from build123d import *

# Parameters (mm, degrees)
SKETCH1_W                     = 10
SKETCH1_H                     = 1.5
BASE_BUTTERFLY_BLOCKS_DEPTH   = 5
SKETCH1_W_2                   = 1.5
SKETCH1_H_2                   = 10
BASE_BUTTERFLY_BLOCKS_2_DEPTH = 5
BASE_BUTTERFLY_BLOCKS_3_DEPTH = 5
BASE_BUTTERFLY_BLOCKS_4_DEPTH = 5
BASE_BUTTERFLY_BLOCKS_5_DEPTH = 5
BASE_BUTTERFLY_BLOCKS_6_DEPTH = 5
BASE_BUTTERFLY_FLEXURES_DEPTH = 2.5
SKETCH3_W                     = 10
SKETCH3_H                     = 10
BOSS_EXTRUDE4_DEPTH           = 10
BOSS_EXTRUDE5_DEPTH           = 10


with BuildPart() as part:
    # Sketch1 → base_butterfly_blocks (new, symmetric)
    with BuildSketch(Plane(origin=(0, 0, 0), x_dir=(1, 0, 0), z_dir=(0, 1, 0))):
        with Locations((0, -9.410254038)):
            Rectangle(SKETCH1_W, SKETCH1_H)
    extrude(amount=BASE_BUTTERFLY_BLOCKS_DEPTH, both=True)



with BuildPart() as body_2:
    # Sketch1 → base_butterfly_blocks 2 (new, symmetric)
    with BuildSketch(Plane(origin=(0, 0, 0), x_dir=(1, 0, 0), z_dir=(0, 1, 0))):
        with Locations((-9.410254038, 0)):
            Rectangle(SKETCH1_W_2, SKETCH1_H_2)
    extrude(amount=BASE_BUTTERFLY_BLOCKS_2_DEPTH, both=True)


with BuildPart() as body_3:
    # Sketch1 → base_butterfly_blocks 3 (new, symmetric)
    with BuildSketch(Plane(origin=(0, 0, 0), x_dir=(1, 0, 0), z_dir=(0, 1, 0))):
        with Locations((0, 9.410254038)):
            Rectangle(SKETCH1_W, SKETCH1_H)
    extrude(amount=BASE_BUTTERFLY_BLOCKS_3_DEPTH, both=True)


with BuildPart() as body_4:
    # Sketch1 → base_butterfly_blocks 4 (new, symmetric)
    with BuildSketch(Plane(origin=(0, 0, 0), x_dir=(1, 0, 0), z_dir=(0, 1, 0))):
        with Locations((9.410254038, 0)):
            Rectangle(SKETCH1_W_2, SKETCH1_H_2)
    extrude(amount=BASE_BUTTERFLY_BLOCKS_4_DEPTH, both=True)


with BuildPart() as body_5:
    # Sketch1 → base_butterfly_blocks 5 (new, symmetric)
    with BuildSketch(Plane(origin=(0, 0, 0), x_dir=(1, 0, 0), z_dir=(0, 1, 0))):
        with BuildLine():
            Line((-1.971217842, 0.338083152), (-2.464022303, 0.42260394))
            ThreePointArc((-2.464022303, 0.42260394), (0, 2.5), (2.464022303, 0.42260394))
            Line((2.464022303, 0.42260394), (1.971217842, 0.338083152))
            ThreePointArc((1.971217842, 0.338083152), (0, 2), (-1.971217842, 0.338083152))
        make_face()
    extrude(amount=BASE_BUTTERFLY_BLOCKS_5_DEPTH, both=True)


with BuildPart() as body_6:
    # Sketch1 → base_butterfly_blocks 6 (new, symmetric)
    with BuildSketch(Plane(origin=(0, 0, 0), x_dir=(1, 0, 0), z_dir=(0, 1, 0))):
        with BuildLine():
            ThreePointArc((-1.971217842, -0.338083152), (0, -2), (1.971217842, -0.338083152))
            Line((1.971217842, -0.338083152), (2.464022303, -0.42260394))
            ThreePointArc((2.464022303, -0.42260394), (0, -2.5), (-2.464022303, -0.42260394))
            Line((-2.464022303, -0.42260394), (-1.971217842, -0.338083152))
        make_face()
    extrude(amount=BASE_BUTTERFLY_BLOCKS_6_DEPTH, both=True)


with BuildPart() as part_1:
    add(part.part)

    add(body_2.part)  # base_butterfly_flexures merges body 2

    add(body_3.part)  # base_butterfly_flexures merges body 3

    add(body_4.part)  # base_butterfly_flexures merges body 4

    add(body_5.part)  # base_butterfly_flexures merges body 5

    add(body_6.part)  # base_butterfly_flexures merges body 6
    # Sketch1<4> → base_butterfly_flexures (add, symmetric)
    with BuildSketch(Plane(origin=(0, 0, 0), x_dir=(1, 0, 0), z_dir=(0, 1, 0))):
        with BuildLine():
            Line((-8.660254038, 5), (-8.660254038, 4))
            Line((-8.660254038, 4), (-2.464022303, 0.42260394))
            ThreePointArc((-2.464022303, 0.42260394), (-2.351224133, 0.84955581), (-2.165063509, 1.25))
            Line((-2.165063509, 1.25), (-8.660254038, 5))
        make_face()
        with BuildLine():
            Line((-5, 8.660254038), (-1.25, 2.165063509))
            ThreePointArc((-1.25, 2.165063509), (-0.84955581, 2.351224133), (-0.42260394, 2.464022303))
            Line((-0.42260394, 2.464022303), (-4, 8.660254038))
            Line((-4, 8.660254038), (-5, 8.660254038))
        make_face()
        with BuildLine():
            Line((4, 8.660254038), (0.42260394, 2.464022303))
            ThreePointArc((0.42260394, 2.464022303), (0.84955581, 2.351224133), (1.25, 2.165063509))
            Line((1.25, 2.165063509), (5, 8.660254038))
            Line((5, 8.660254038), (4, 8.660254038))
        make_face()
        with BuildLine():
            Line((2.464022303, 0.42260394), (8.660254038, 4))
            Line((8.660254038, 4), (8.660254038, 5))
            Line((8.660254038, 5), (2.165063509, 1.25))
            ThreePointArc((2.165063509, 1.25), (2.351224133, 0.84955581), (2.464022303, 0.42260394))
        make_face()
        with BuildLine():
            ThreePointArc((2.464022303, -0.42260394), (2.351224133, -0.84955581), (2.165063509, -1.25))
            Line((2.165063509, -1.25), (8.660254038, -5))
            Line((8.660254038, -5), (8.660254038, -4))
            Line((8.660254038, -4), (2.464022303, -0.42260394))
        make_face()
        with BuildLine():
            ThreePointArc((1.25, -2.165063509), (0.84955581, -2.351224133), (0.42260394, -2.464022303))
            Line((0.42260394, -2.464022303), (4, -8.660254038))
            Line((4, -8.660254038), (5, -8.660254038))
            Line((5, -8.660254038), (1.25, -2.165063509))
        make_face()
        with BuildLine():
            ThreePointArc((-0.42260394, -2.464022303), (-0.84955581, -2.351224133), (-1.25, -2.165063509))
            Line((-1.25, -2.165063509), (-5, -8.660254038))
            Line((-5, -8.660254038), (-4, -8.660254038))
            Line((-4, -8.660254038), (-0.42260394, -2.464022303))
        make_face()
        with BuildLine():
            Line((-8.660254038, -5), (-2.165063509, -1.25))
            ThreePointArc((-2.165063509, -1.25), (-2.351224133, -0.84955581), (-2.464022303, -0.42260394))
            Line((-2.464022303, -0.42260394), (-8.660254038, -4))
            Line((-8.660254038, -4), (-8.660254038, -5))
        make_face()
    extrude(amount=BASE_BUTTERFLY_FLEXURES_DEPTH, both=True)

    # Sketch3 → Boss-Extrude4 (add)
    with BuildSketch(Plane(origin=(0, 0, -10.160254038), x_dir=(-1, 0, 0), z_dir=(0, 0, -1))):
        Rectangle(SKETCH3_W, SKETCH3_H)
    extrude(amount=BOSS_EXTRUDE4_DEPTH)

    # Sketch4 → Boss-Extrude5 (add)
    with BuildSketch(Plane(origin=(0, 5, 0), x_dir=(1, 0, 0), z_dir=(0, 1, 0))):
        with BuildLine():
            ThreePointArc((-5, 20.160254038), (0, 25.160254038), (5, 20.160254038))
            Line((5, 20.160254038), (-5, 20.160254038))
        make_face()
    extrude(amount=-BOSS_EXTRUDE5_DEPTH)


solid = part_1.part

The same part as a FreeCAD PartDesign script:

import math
import FreeCAD as App
import Part
import Sketcher

V = App.Vector
Q = App.Units.Quantity

doc = App.newDocument("Part")
body = doc.addObject("PartDesign::Body", "Body")

sketch1 = body.newObject("Sketcher::SketchObject", "Sketch")
sketch1.AttachmentSupport = (doc.getObject("XZ_Plane"), [""])
sketch1.MapMode = "FlatFace"
sketch1.addGeometry([
    Part.LineSegment(V(-5, 8.660254, 0), V(-5, 10.160254, 0)),
    Part.LineSegment(V(-5, 10.160254, 0), V(5, 10.160254, 0)),
    Part.LineSegment(V(5, 10.160254, 0), V(5, 8.660254, 0)),
    Part.LineSegment(V(5, 8.660254, 0), V(-5, 8.660254, 0)),
], False)
sketch1.addConstraint([
    Sketcher.Constraint("Coincident", 0, 2, 1, 1),
    Sketcher.Constraint("Coincident", 1, 2, 2, 1),
    Sketcher.Constraint("Coincident", 2, 2, 3, 1),
    Sketcher.Constraint("Coincident", 3, 2, 0, 1),
    Sketcher.Constraint("Vertical", 0),
    Sketcher.Constraint("Horizontal", 1),
    Sketcher.Constraint("Vertical", 2),
    Sketcher.Constraint("Horizontal", 3),
    Sketcher.Constraint("DistanceX", 1, 1, 1, 2, 10.0),
    Sketcher.Constraint("DistanceY", 0, 1, 0, 2, 1.5),
    Sketcher.Constraint("DistanceX", 0, 2, -1, 1, 5.0),
    Sketcher.Constraint("DistanceY", -1, 1, 0, 2, 10.160254),
])
pad1 = body.newObject("PartDesign::Pad", "Pad")
pad1.Profile = sketch1
pad1.Length = 10
pad1.Midplane = True
body2 = doc.addObject("PartDesign::Body", "Body001")

sketch2 = body2.newObject("Sketcher::SketchObject", "Sketch001")
sketch2.AttachmentSupport = (doc.getObject("XZ_Plane001"), [""])
sketch2.MapMode = "FlatFace"
sketch2.addGeometry([
    Part.LineSegment(V(-10.160254, -5, 0), V(-10.160254, 5, 0)),
    Part.LineSegment(V(-10.160254, 5, 0), V(-8.660254, 5, 0)),
    Part.LineSegment(V(-8.660254, 5, 0), V(-8.660254, -5, 0)),
    Part.LineSegment(V(-8.660254, -5, 0), V(-10.160254, -5, 0)),
], False)
sketch2.addConstraint([
    Sketcher.Constraint("Coincident", 0, 2, 1, 1),
    Sketcher.Constraint("Coincident", 1, 2, 2, 1),
    Sketcher.Constraint("Coincident", 2, 2, 3, 1),
    Sketcher.Constraint("Coincident", 3, 2, 0, 1),
    Sketcher.Constraint("Vertical", 0),
    Sketcher.Constraint("Horizontal", 1),
    Sketcher.Constraint("Vertical", 2),
    Sketcher.Constraint("Horizontal", 3),
    Sketcher.Constraint("DistanceY", 0, 1, 0, 2, 10.0),
    Sketcher.Constraint("DistanceX", 1, 1, 1, 2, 1.5),
    Sketcher.Constraint("DistanceY", -1, 1, 0, 2, 5.0),
    Sketcher.Constraint("DistanceX", 0, 2, -1, 1, 10.160254),
])
pad2 = body2.newObject("PartDesign::Pad", "Pad001")
pad2.Profile = sketch2
pad2.Length = 10
pad2.Midplane = True
body3 = doc.addObject("PartDesign::Body", "Body002")

sketch3 = body3.newObject("Sketcher::SketchObject", "Sketch002")
sketch3.AttachmentSupport = (doc.getObject("XZ_Plane002"), [""])
sketch3.MapMode = "FlatFace"
sketch3.addGeometry([
    Part.LineSegment(V(-5, -10.160254, 0), V(-5, -8.660254, 0)),
    Part.LineSegment(V(-5, -8.660254, 0), V(5, -8.660254, 0)),
    Part.LineSegment(V(5, -8.660254, 0), V(5, -10.160254, 0)),
    Part.LineSegment(V(5, -10.160254, 0), V(-5, -10.160254, 0)),
], False)
sketch3.addConstraint([
    Sketcher.Constraint("Coincident", 0, 2, 1, 1),
    Sketcher.Constraint("Coincident", 1, 2, 2, 1),
    Sketcher.Constraint("Coincident", 2, 2, 3, 1),
    Sketcher.Constraint("Coincident", 3, 2, 0, 1),
    Sketcher.Constraint("Vertical", 0),
    Sketcher.Constraint("Horizontal", 1),
    Sketcher.Constraint("Vertical", 2),
    Sketcher.Constraint("Horizontal", 3),
    Sketcher.Constraint("DistanceX", 1, 1, 1, 2, 10.0),
    Sketcher.Constraint("DistanceY", 0, 1, 0, 2, 1.5),
    Sketcher.Constraint("DistanceX", 0, 2, -1, 1, 5.0),
    Sketcher.Constraint("DistanceY", 0, 2, -1, 1, 8.660254),
])
pad3 = body3.newObject("PartDesign::Pad", "Pad002")
pad3.Profile = sketch3
pad3.Length = 10
pad3.Midplane = True
body4 = doc.addObject("PartDesign::Body", "Body003")

sketch4 = body4.newObject("Sketcher::SketchObject", "Sketch003")
sketch4.AttachmentSupport = (doc.getObject("XZ_Plane003"), [""])
sketch4.MapMode = "FlatFace"
sketch4.addGeometry([
    Part.LineSegment(V(8.660254, -5, 0), V(8.660254, 5, 0)),
    Part.LineSegment(V(8.660254, 5, 0), V(10.160254, 5, 0)),
    Part.LineSegment(V(10.160254, 5, 0), V(10.160254, -5, 0)),
    Part.LineSegment(V(10.160254, -5, 0), V(8.660254, -5, 0)),
], False)
sketch4.addConstraint([
    Sketcher.Constraint("Coincident", 0, 2, 1, 1),
    Sketcher.Constraint("Coincident", 1, 2, 2, 1),
    Sketcher.Constraint("Coincident", 2, 2, 3, 1),
    Sketcher.Constraint("Coincident", 3, 2, 0, 1),
    Sketcher.Constraint("Vertical", 0),
    Sketcher.Constraint("Horizontal", 1),
    Sketcher.Constraint("Vertical", 2),
    Sketcher.Constraint("Horizontal", 3),
    Sketcher.Constraint("DistanceY", 0, 1, 0, 2, 10.0),
    Sketcher.Constraint("DistanceX", 1, 1, 1, 2, 1.5),
    Sketcher.Constraint("DistanceY", -1, 1, 0, 2, 5.0),
    Sketcher.Constraint("DistanceX", -1, 1, 0, 2, 8.660254),
])
pad4 = body4.newObject("PartDesign::Pad", "Pad003")
pad4.Profile = sketch4
pad4.Length = 10
pad4.Midplane = True
body5 = doc.addObject("PartDesign::Body", "Body004")

sketch5 = body5.newObject("Sketcher::SketchObject", "Sketch004")
sketch5.AttachmentSupport = (doc.getObject("XZ_Plane004"), [""])
sketch5.MapMode = "FlatFace"
sketch5.addGeometry([
    Part.LineSegment(V(-2.464022, -0.422604, 0), V(-1.971218, -0.338083, 0)),
    Part.ArcOfCircle(Part.Circle(V(0, 0, 0), V(0, 0, 1), 2), math.radians(-170.267901), math.radians(-9.732099)),
    Part.LineSegment(V(1.971218, -0.338083, 0), V(2.464022, -0.422604, 0)),
    Part.ArcOfCircle(Part.Circle(V(0, 0, 0), V(0, 0, 1), 2.5), math.radians(-170.267901), math.radians(-9.732099)),
], False)
sketch5.addConstraint([
    Sketcher.Constraint("Coincident", 0, 2, 1, 1),
    Sketcher.Constraint("Coincident", 1, 2, 2, 1),
    Sketcher.Constraint("Coincident", 2, 2, 3, 2),
    Sketcher.Constraint("Coincident", 3, 1, 0, 1),
    Sketcher.Constraint("Coincident", 1, 3, -1, 1),
    Sketcher.Constraint("Coincident", 3, 3, -1, 1),
    Sketcher.Constraint("Horizontal", 0, 2, 1, 2),
    Sketcher.Constraint("Horizontal", 2, 2, 3, 1),
    Sketcher.Constraint("Radius", 1, 2.0),
    Sketcher.Constraint("Radius", 3, 2.5),
    Sketcher.Constraint("DistanceY", 2, 2, 1, 2, 0.084521),
    Sketcher.Constraint("DistanceX", 0, 2, 2, 2, 4.43524),
])
pad5 = body5.newObject("PartDesign::Pad", "Pad004")
pad5.Profile = sketch5
pad5.Length = 10
pad5.Midplane = True
body6 = doc.addObject("PartDesign::Body", "Body005")

sketch6 = body6.newObject("Sketcher::SketchObject", "Sketch005")
sketch6.AttachmentSupport = (doc.getObject("XZ_Plane005"), [""])
sketch6.MapMode = "FlatFace"
sketch6.addGeometry([
    Part.ArcOfCircle(Part.Circle(V(0, 0, 0), V(0, 0, 1), 2), math.radians(9.732099), math.radians(170.267901)),
    Part.LineSegment(V(-1.971218, 0.338083, 0), V(-2.464022, 0.422604, 0)),
    Part.ArcOfCircle(Part.Circle(V(0, 0, 0), V(0, 0, 1), 2.5), math.radians(9.732099), math.radians(170.267901)),
    Part.LineSegment(V(2.464022, 0.422604, 0), V(1.971218, 0.338083, 0)),
], False)
sketch6.addConstraint([
    Sketcher.Constraint("Coincident", 0, 2, 1, 1),
    Sketcher.Constraint("Coincident", 1, 2, 2, 2),
    Sketcher.Constraint("Coincident", 2, 1, 3, 1),
    Sketcher.Constraint("Coincident", 3, 2, 0, 1),
    Sketcher.Constraint("Coincident", 0, 3, -1, 1),
    Sketcher.Constraint("Coincident", 2, 3, -1, 1),
    Sketcher.Constraint("Horizontal", 1, 2, 2, 1),
    Sketcher.Constraint("Horizontal", 0, 2, 3, 2),
    Sketcher.Constraint("Radius", 0, 2.0),
    Sketcher.Constraint("Radius", 2, 2.5),
    Sketcher.Constraint("DistanceY", 0, 2, 1, 2, 0.084521),
    Sketcher.Constraint("DistanceX", 0, 2, 2, 1, 4.43524),
])
pad6 = body6.newObject("PartDesign::Pad", "Pad005")
pad6.Profile = sketch6
pad6.Length = 10
pad6.Midplane = True
body.AllowCompound = True
doc.recompute()

boolean = body.newObject("PartDesign::Boolean", "Boolean")
boolean.Type = "Fuse"
boolean.addObjects([body2])
doc.recompute()

boolean2 = body.newObject("PartDesign::Boolean", "Boolean001")
boolean2.Type = "Fuse"
boolean2.addObjects([body3])
doc.recompute()

boolean3 = body.newObject("PartDesign::Boolean", "Boolean002")
boolean3.Type = "Fuse"
boolean3.addObjects([body4])
doc.recompute()

boolean4 = body.newObject("PartDesign::Boolean", "Boolean003")
boolean4.Type = "Fuse"
boolean4.addObjects([body5])
doc.recompute()

boolean5 = body.newObject("PartDesign::Boolean", "Boolean004")
boolean5.Type = "Fuse"
boolean5.addObjects([body6])

sketch7 = body.newObject("Sketcher::SketchObject", "Sketch006")
sketch7.AttachmentSupport = (doc.getObject("XZ_Plane"), [""])
sketch7.MapMode = "FlatFace"
sketch7.addGeometry([
    Part.LineSegment(V(-8.660254, -5, 0), V(-8.660254, -4, 0)),
    Part.LineSegment(V(-8.660254, -4, 0), V(-2.464022, -0.422604, 0)),
    Part.ArcOfCircle(Part.Circle(V(0, 0, 0), V(0, 0, 1), 2.5), math.radians(-170.267901), math.radians(-150)),
    Part.LineSegment(V(-2.165064, -1.25, 0), V(-8.660254, -5, 0)),
    Part.LineSegment(V(-5, -8.660254, 0), V(-1.25, -2.165064, 0)),
    Part.ArcOfCircle(Part.Circle(V(0, 0, 0), V(0, 0, 1), 2.5), math.radians(-120), math.radians(-99.732099)),
    Part.LineSegment(V(-0.422604, -2.464022, 0), V(-4, -8.660254, 0)),
    Part.LineSegment(V(-4, -8.660254, 0), V(-5, -8.660254, 0)),
    Part.LineSegment(V(4, -8.660254, 0), V(0.422604, -2.464022, 0)),
    Part.ArcOfCircle(Part.Circle(V(0, 0, 0), V(0, 0, 1), 2.5), math.radians(-80.267901), math.radians(-60)),
    Part.LineSegment(V(1.25, -2.165064, 0), V(5, -8.660254, 0)),
    Part.LineSegment(V(5, -8.660254, 0), V(4, -8.660254, 0)),
    Part.LineSegment(V(2.464022, -0.422604, 0), V(8.660254, -4, 0)),
    Part.LineSegment(V(8.660254, -4, 0), V(8.660254, -5, 0)),
    Part.LineSegment(V(8.660254, -5, 0), V(2.165064, -1.25, 0)),
    Part.ArcOfCircle(Part.Circle(V(0, 0, 0), V(0, 0, 1), 2.5), math.radians(-30), math.radians(-9.732099)),
    Part.ArcOfCircle(Part.Circle(V(0, 0, 0), V(0, 0, 1), 2.5), math.radians(9.732099), math.radians(30)),
    Part.LineSegment(V(2.165064, 1.25, 0), V(8.660254, 5, 0)),
    Part.LineSegment(V(8.660254, 5, 0), V(8.660254, 4, 0)),
    Part.LineSegment(V(8.660254, 4, 0), V(2.464022, 0.422604, 0)),
    Part.ArcOfCircle(Part.Circle(V(0, 0, 0), V(0, 0, 1), 2.5), math.radians(60), math.radians(80.267901)),
    Part.LineSegment(V(0.422604, 2.464022, 0), V(4, 8.660254, 0)),
    Part.LineSegment(V(4, 8.660254, 0), V(5, 8.660254, 0)),
    Part.LineSegment(V(5, 8.660254, 0), V(1.25, 2.165064, 0)),
    Part.ArcOfCircle(Part.Circle(V(0, 0, 0), V(0, 0, 1), 2.5), math.radians(99.732099), math.radians(120)),
    Part.LineSegment(V(-1.25, 2.165064, 0), V(-5, 8.660254, 0)),
    Part.LineSegment(V(-5, 8.660254, 0), V(-4, 8.660254, 0)),
    Part.LineSegment(V(-4, 8.660254, 0), V(-0.422604, 2.464022, 0)),
    Part.LineSegment(V(-8.660254, 5, 0), V(-2.165064, 1.25, 0)),
    Part.ArcOfCircle(Part.Circle(V(0, 0, 0), V(0, 0, 1), 2.5), math.radians(150), math.radians(170.267901)),
    Part.LineSegment(V(-2.464022, 0.422604, 0), V(-8.660254, 4, 0)),
    Part.LineSegment(V(-8.660254, 4, 0), V(-8.660254, 5, 0)),
], False)
sketch7.addConstraint([
    Sketcher.Constraint("Coincident", 0, 2, 1, 1),
    Sketcher.Constraint("Coincident", 1, 2, 2, 1),
    Sketcher.Constraint("Coincident", 2, 2, 3, 1),
    Sketcher.Constraint("Coincident", 3, 2, 0, 1),
    Sketcher.Constraint("Coincident", 4, 2, 5, 1),
    Sketcher.Constraint("Coincident", 5, 2, 6, 1),
    Sketcher.Constraint("Coincident", 6, 2, 7, 1),
    Sketcher.Constraint("Coincident", 7, 2, 4, 1),
    Sketcher.Constraint("Coincident", 8, 2, 9, 1),
    Sketcher.Constraint("Coincident", 9, 2, 10, 1),
    Sketcher.Constraint("Coincident", 10, 2, 11, 1),
    Sketcher.Constraint("Coincident", 11, 2, 8, 1),
    Sketcher.Constraint("Coincident", 12, 2, 13, 1),
    Sketcher.Constraint("Coincident", 13, 2, 14, 1),
    Sketcher.Constraint("Coincident", 14, 2, 15, 1),
    Sketcher.Constraint("Coincident", 15, 2, 12, 1),
    Sketcher.Constraint("Coincident", 16, 2, 17, 1),
    Sketcher.Constraint("Coincident", 17, 2, 18, 1),
    Sketcher.Constraint("Coincident", 18, 2, 19, 1),
    Sketcher.Constraint("Coincident", 19, 2, 16, 1),
    Sketcher.Constraint("Coincident", 20, 2, 21, 1),
    Sketcher.Constraint("Coincident", 21, 2, 22, 1),
    Sketcher.Constraint("Coincident", 22, 2, 23, 1),
    Sketcher.Constraint("Coincident", 23, 2, 20, 1),
    Sketcher.Constraint("Coincident", 24, 2, 25, 1),
    Sketcher.Constraint("Coincident", 25, 2, 26, 1),
    Sketcher.Constraint("Coincident", 26, 2, 27, 1),
    Sketcher.Constraint("Coincident", 27, 2, 24, 1),
    Sketcher.Constraint("Coincident", 28, 2, 29, 1),
    Sketcher.Constraint("Coincident", 29, 2, 30, 1),
    Sketcher.Constraint("Coincident", 30, 2, 31, 1),
    Sketcher.Constraint("Coincident", 31, 2, 28, 1),
    Sketcher.Constraint("Vertical", 0),
    Sketcher.Constraint("Horizontal", 7),
    Sketcher.Constraint("Horizontal", 11),
    Sketcher.Constraint("Vertical", 13),
    Sketcher.Constraint("Vertical", 18),
    Sketcher.Constraint("Horizontal", 22),
    Sketcher.Constraint("Horizontal", 26),
    Sketcher.Constraint("Vertical", 31),
    Sketcher.Constraint("Coincident", 2, 3, -1, 1),
    Sketcher.Constraint("Coincident", 5, 3, -1, 1),
    Sketcher.Constraint("Coincident", 9, 3, -1, 1),
    Sketcher.Constraint("Coincident", 15, 3, -1, 1),
    Sketcher.Constraint("Coincident", 16, 3, -1, 1),
    Sketcher.Constraint("Coincident", 20, 3, -1, 1),
    Sketcher.Constraint("Coincident", 24, 3, -1, 1),
    Sketcher.Constraint("Coincident", 29, 3, -1, 1),
    Sketcher.Constraint("Equal", 2, 5),
    Sketcher.Constraint("Equal", 5, 9),
    Sketcher.Constraint("Equal", 9, 15),
    Sketcher.Constraint("Equal", 15, 16),
    Sketcher.Constraint("Equal", 16, 20),
    Sketcher.Constraint("Equal", 20, 24),
    Sketcher.Constraint("Equal", 24, 29),
    Sketcher.Constraint("Symmetric", 3, 2, 17, 2, -1, 1),
    Sketcher.Constraint("Symmetric", 6, 2, 21, 2, -1, 1),
    Sketcher.Constraint("Symmetric", 10, 2, 25, 2, -1, 1),
    Sketcher.Constraint("Symmetric", 12, 2, 30, 2, -1, 1),
    Sketcher.Constraint("Symmetric", 7, 2, 10, 2, -2),
    Sketcher.Constraint("Symmetric", 0, 2, 12, 2, -2),
    Sketcher.Constraint("Parallel", 1, 3),
    Sketcher.Constraint("Parallel", 4, 6),
    Sketcher.Constraint("Perpendicular", 3, 8),
    Sketcher.Constraint("Parallel", 8, 10),
    Sketcher.Constraint("Perpendicular", 6, 12),
    Sketcher.Constraint("Parallel", 12, 14),
    Sketcher.Constraint("Perpendicular", 10, 17),
    Sketcher.Constraint("Parallel", 17, 19),
    Sketcher.Constraint("Perpendicular", 14, 21),
    Sketcher.Constraint("Parallel", 21, 23),
    Sketcher.Constraint("Perpendicular", 19, 25),
    Sketcher.Constraint("Parallel", 25, 27),
    Sketcher.Constraint("Perpendicular", 23, 28),
    Sketcher.Constraint("Parallel", 28, 30),
    Sketcher.Constraint("Horizontal", 5, 2, 8, 2),
    Sketcher.Constraint("Horizontal", 4, 2, 9, 2),
    Sketcher.Constraint("Horizontal", 3, 2, 13, 2),
    Sketcher.Constraint("Horizontal", 23, 2, 24, 2),
    Sketcher.Constraint("Horizontal", 20, 2, 27, 2),
    Sketcher.Constraint("Horizontal", 16, 2, 28, 2),
    Sketcher.Constraint("Horizontal", 19, 2, 29, 2),
    Sketcher.Constraint("Equal", 26, 0),
    Sketcher.Constraint("Equal", 3, 4),
    Sketcher.Constraint("Equal", 1, 6),
    Sketcher.Constraint("Radius", 2, 2.5),
    Sketcher.Constraint("DistanceX", 7, 2, 7, 1, 1.0),
    Sketcher.Constraint("Angle", 1, Q("30 deg")),
    Sketcher.Constraint("DistanceY", 0, 2, -1, 1, 4.0),
    Sketcher.Constraint("Distance", 3, 7.5),
])
pad7 = body.newObject("PartDesign::Pad", "Pad006")
pad7.Profile = sketch7
pad7.Length = 5
pad7.Midplane = True

sketch8 = body.newObject("Sketcher::SketchObject", "Sketch007")
sketch8.AttachmentSupport = (doc.getObject("XY_Plane"), [""])
sketch8.MapMode = "FlatFace"
sketch8.AttachmentOffset = App.Placement(V(0, 0, -10.160254), App.Rotation())
sketch8.addGeometry([
    Part.LineSegment(V(5, 5, 0), V(5, -5, 0)),
    Part.LineSegment(V(5, -5, 0), V(-5, -5, 0)),
    Part.LineSegment(V(-5, -5, 0), V(-5, 5, 0)),
    Part.LineSegment(V(-5, 5, 0), V(5, 5, 0)),
], False)
sketch8.addConstraint([
    Sketcher.Constraint("Coincident", 0, 2, 1, 1),
    Sketcher.Constraint("Coincident", 1, 2, 2, 1),
    Sketcher.Constraint("Coincident", 2, 2, 3, 1),
    Sketcher.Constraint("Coincident", 3, 2, 0, 1),
    Sketcher.Constraint("Vertical", 0),
    Sketcher.Constraint("Horizontal", 1),
    Sketcher.Constraint("Vertical", 2),
    Sketcher.Constraint("Horizontal", 3),
    Sketcher.Constraint("Symmetric", 0, 2, 2, 2, -1, 1),
    Sketcher.Constraint("Equal", 3, 0),
    Sketcher.Constraint("DistanceX", 1, 2, 1, 1, 10.0),
])
pad8 = body.newObject("PartDesign::Pad", "Pad007")
pad8.Profile = sketch8
pad8.Length = 10
pad8.Reversed = True

sketch9 = body.newObject("Sketcher::SketchObject", "Sketch008")
sketch9.AttachmentSupport = (doc.getObject("XZ_Plane"), [""])
sketch9.MapMode = "FlatFace"
sketch9.AttachmentOffset = App.Placement(V(0, 0, -5), App.Rotation())
sketch9.addGeometry([
    Part.ArcOfCircle(Part.Circle(V(0, -20.160254, 0), V(0, 0, 1), 5), math.radians(180), math.radians(360)),
    Part.LineSegment(V(-5, -20.160254, 0), V(5, -20.160254, 0)),
], False)
sketch9.addConstraint([
    Sketcher.Constraint("Coincident", 0, 1, 1, 1),
    Sketcher.Constraint("Coincident", 1, 2, 0, 2),
    Sketcher.Constraint("Horizontal", 1),
    Sketcher.Constraint("PointOnObject", 0, 3, -2),
    Sketcher.Constraint("Radius", 0, 5.0),
    Sketcher.Constraint("DistanceY", 0, 3, -1, 1, 20.160254),
    Sketcher.Constraint("DistanceY", 0, 1, -1, 1, 20.160254),
])
pad9 = body.newObject("PartDesign::Pad", "Pad008")
pad9.Profile = sketch9
pad9.Length = 10

doc.recompute()
